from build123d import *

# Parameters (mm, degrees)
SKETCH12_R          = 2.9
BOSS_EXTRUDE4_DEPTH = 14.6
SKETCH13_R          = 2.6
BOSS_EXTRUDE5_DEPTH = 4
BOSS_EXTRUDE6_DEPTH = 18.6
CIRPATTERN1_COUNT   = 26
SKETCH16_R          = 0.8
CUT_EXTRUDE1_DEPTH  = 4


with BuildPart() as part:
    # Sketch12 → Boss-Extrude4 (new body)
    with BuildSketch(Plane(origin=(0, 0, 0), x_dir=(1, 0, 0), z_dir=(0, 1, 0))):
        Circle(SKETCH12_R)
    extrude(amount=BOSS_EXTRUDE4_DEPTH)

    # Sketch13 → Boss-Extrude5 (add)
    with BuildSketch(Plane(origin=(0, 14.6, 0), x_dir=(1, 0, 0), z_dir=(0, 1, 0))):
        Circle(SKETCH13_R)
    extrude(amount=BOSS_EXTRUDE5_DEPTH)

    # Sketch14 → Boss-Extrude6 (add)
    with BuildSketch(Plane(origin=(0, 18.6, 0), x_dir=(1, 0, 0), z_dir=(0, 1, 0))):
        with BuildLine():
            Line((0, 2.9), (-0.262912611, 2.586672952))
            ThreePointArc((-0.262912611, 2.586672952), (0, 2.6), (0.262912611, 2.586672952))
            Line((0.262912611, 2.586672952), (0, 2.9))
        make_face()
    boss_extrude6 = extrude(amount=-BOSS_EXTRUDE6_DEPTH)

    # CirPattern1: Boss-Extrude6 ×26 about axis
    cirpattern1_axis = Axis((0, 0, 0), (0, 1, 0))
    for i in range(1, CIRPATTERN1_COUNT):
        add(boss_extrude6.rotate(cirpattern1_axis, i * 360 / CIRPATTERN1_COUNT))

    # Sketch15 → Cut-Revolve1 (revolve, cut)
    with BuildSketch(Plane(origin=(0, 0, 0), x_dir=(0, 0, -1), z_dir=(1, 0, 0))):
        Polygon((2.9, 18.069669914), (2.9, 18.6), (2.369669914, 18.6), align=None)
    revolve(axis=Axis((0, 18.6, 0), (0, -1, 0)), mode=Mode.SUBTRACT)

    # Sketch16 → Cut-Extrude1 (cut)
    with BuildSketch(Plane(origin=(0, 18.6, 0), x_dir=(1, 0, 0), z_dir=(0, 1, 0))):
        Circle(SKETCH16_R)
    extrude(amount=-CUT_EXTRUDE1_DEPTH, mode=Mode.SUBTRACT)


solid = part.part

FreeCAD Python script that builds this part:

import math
import FreeCAD as App
import Part
import Sketcher
from FreeCAD import Vector
Q = App.Units.Quantity


def add_polygon(sketch, points):
    """Adds a closed chain of lines whose ends are joined by coincident constraints."""
    first, n = sketch.GeometryCount, len(points)
    for a, b in zip(points, points[1:] + points[:1]):
        sketch.addGeometry(Part.LineSegment(App.Vector(*a, 0), App.Vector(*b, 0)), False)
    for i in range(n):
        sketch.addConstraint(Sketcher.Constraint("Coincident", first + i, 2, first + (i + 1) % n, 1))

doc = App.newDocument("Part")
body = doc.addObject("PartDesign::Body", "Body")

# Sketch on XZ plane
sketch1 = doc.addObject("Sketcher::SketchObject", "Sketch")
body.addObject(sketch1)
sketch1.AttachmentSupport = (doc.XZ_Plane, [""])
sketch1.MapMode = "FlatFace"
sketch1.addGeometry(Part.Circle(Vector(0, 0, 0), Vector(0, 0, 1), 2.9), False)
sketch1.addConstraint([
    Sketcher.Constraint("Coincident", 0, 3, -1, 1),
    Sketcher.Constraint("Diameter", 0, 5.8),
])
pad1 = doc.addObject("PartDesign::Pad", "Pad")
body.addObject(pad1)
pad1.Profile = sketch1
pad1.Length = 14.6
pad1.Reversed = True

# Sketch on XZ plane
sketch2 = doc.addObject("Sketcher::SketchObject", "Sketch001")
body.addObject(sketch2)
sketch2.AttachmentSupport = (doc.XZ_Plane, [""])
sketch2.MapMode = "FlatFace"
sketch2.AttachmentOffset = App.Placement(Vector(0, 0, -14.6), App.Rotation())
sketch2.addGeometry(Part.Circle(Vector(0, 0, 0), Vector(0, 0, 1), 2.6), False)
sketch2.addConstraint([
    Sketcher.Constraint("Coincident", 0, 3, -1, 1),
    Sketcher.Constraint("Diameter", 0, 5.2),
])
pad2 = doc.addObject("PartDesign::Pad", "Pad001")
body.addObject(pad2)
pad2.Profile = sketch2
pad2.Length = 4
pad2.Reversed = True

# Sketch on XZ plane
sketch3 = doc.addObject("Sketcher::SketchObject", "Sketch002")
body.addObject(sketch3)
sketch3.AttachmentSupport = (doc.XZ_Plane, [""])
sketch3.MapMode = "FlatFace"
sketch3.AttachmentOffset = App.Placement(Vector(0, 0, -18.6), App.Rotation())
sketch3.addGeometry([
    Part.LineSegment(Vector(0, -2.9, 0), Vector(-0.26, -2.59, 0)),
    Part.ArcOfCircle(Part.Circle(Vector(0, 0, 0), Vector(0, 0, 1), 2.6), math.radians(-95.8), math.radians(-84.2)),
    Part.LineSegment(Vector(0.26, -2.59, 0), Vector(0, -2.9, 0)),
], False)
sketch3.addConstraint([
    Sketcher.Constraint("Coincident", 0, 2, 1, 1),
    Sketcher.Constraint("Coincident", 1, 2, 2, 1),
    Sketcher.Constraint("Coincident", 2, 2, 0, 1),
    Sketcher.Constraint("Coincident", 1, 3, -1, 1),
    Sketcher.Constraint("PointOnObject", 2, 2, -2),
    Sketcher.Constraint("Horizontal", 0, 2, 1, 2),
    Sketcher.Constraint("Radius", 1, 2.6),
    Sketcher.Constraint("Angle", 0, Q("130 deg")),
    Sketcher.Constraint("DistanceY", 2, 2, -1, 1, 2.9),
])
pad3 = doc.addObject("PartDesign::Pad", "Pad002")
body.addObject(pad3)
pad3.Profile = sketch3
pad3.Length = 18.6
doc.recompute()

polarpattern = doc.addObject("PartDesign::PolarPattern", "PolarPattern")
body.addObject(polarpattern)
polarpattern.Originals = [pad3]
polarpattern.Axis = (doc.Y_Axis, [""])
polarpattern.Angle = 360
polarpattern.Occurrences = 26
body.Tip = polarpattern

# Sketch on YZ plane
sketch4 = doc.addObject("Sketcher::SketchObject", "Sketch003")
body.addObject(sketch4)
sketch4.AttachmentSupport = (doc.YZ_Plane, [""])
sketch4.MapMode = "FlatFace"
add_polygon(sketch4, [(18.1, -2.9), (18.6, -2.9), (18.6, -2.4)])  # lines 0-2
sketch4.addConstraint([
    Sketcher.Constraint("Horizontal", 0),
    Sketcher.Constraint("Vertical", 1),
    Sketcher.Constraint("Equal", 0, 1),
    Sketcher.Constraint("DistanceX", -1, 1, 0, 2, 18.6),
    Sketcher.Constraint("DistanceY", 0, 2, -1, 1, 2.9),
    Sketcher.Constraint("Distance", 2, 0.75),
])
groove = doc.addObject("PartDesign::Groove", "Groove")
body.addObject(groove)
groove.Profile = sketch4
groove.ReferenceAxis = (sketch4, ["H_Axis"])
groove.Angle = 360

# Sketch on XZ plane
sketch5 = doc.addObject("Sketcher::SketchObject", "Sketch004")
body.addObject(sketch5)
sketch5.AttachmentSupport = (doc.XZ_Plane, [""])
sketch5.MapMode = "FlatFace"
sketch5.AttachmentOffset = App.Placement(Vector(0, 0, -18.6), App.Rotation())
sketch5.addGeometry(Part.Circle(Vector(0, 0, 0), Vector(0, 0, 1), 0.8), False)
sketch5.addConstraint([
    Sketcher.Constraint("Coincident", 0, 3, -1, 1),
    Sketcher.Constraint("Diameter", 0, 1.6),
])
pocket1 = doc.addObject("PartDesign::Pocket", "Pocket")
body.addObject(pocket1)
pocket1.Profile = sketch5
pocket1.Length = 4
pocket1.Reversed = True

doc.recompute()
